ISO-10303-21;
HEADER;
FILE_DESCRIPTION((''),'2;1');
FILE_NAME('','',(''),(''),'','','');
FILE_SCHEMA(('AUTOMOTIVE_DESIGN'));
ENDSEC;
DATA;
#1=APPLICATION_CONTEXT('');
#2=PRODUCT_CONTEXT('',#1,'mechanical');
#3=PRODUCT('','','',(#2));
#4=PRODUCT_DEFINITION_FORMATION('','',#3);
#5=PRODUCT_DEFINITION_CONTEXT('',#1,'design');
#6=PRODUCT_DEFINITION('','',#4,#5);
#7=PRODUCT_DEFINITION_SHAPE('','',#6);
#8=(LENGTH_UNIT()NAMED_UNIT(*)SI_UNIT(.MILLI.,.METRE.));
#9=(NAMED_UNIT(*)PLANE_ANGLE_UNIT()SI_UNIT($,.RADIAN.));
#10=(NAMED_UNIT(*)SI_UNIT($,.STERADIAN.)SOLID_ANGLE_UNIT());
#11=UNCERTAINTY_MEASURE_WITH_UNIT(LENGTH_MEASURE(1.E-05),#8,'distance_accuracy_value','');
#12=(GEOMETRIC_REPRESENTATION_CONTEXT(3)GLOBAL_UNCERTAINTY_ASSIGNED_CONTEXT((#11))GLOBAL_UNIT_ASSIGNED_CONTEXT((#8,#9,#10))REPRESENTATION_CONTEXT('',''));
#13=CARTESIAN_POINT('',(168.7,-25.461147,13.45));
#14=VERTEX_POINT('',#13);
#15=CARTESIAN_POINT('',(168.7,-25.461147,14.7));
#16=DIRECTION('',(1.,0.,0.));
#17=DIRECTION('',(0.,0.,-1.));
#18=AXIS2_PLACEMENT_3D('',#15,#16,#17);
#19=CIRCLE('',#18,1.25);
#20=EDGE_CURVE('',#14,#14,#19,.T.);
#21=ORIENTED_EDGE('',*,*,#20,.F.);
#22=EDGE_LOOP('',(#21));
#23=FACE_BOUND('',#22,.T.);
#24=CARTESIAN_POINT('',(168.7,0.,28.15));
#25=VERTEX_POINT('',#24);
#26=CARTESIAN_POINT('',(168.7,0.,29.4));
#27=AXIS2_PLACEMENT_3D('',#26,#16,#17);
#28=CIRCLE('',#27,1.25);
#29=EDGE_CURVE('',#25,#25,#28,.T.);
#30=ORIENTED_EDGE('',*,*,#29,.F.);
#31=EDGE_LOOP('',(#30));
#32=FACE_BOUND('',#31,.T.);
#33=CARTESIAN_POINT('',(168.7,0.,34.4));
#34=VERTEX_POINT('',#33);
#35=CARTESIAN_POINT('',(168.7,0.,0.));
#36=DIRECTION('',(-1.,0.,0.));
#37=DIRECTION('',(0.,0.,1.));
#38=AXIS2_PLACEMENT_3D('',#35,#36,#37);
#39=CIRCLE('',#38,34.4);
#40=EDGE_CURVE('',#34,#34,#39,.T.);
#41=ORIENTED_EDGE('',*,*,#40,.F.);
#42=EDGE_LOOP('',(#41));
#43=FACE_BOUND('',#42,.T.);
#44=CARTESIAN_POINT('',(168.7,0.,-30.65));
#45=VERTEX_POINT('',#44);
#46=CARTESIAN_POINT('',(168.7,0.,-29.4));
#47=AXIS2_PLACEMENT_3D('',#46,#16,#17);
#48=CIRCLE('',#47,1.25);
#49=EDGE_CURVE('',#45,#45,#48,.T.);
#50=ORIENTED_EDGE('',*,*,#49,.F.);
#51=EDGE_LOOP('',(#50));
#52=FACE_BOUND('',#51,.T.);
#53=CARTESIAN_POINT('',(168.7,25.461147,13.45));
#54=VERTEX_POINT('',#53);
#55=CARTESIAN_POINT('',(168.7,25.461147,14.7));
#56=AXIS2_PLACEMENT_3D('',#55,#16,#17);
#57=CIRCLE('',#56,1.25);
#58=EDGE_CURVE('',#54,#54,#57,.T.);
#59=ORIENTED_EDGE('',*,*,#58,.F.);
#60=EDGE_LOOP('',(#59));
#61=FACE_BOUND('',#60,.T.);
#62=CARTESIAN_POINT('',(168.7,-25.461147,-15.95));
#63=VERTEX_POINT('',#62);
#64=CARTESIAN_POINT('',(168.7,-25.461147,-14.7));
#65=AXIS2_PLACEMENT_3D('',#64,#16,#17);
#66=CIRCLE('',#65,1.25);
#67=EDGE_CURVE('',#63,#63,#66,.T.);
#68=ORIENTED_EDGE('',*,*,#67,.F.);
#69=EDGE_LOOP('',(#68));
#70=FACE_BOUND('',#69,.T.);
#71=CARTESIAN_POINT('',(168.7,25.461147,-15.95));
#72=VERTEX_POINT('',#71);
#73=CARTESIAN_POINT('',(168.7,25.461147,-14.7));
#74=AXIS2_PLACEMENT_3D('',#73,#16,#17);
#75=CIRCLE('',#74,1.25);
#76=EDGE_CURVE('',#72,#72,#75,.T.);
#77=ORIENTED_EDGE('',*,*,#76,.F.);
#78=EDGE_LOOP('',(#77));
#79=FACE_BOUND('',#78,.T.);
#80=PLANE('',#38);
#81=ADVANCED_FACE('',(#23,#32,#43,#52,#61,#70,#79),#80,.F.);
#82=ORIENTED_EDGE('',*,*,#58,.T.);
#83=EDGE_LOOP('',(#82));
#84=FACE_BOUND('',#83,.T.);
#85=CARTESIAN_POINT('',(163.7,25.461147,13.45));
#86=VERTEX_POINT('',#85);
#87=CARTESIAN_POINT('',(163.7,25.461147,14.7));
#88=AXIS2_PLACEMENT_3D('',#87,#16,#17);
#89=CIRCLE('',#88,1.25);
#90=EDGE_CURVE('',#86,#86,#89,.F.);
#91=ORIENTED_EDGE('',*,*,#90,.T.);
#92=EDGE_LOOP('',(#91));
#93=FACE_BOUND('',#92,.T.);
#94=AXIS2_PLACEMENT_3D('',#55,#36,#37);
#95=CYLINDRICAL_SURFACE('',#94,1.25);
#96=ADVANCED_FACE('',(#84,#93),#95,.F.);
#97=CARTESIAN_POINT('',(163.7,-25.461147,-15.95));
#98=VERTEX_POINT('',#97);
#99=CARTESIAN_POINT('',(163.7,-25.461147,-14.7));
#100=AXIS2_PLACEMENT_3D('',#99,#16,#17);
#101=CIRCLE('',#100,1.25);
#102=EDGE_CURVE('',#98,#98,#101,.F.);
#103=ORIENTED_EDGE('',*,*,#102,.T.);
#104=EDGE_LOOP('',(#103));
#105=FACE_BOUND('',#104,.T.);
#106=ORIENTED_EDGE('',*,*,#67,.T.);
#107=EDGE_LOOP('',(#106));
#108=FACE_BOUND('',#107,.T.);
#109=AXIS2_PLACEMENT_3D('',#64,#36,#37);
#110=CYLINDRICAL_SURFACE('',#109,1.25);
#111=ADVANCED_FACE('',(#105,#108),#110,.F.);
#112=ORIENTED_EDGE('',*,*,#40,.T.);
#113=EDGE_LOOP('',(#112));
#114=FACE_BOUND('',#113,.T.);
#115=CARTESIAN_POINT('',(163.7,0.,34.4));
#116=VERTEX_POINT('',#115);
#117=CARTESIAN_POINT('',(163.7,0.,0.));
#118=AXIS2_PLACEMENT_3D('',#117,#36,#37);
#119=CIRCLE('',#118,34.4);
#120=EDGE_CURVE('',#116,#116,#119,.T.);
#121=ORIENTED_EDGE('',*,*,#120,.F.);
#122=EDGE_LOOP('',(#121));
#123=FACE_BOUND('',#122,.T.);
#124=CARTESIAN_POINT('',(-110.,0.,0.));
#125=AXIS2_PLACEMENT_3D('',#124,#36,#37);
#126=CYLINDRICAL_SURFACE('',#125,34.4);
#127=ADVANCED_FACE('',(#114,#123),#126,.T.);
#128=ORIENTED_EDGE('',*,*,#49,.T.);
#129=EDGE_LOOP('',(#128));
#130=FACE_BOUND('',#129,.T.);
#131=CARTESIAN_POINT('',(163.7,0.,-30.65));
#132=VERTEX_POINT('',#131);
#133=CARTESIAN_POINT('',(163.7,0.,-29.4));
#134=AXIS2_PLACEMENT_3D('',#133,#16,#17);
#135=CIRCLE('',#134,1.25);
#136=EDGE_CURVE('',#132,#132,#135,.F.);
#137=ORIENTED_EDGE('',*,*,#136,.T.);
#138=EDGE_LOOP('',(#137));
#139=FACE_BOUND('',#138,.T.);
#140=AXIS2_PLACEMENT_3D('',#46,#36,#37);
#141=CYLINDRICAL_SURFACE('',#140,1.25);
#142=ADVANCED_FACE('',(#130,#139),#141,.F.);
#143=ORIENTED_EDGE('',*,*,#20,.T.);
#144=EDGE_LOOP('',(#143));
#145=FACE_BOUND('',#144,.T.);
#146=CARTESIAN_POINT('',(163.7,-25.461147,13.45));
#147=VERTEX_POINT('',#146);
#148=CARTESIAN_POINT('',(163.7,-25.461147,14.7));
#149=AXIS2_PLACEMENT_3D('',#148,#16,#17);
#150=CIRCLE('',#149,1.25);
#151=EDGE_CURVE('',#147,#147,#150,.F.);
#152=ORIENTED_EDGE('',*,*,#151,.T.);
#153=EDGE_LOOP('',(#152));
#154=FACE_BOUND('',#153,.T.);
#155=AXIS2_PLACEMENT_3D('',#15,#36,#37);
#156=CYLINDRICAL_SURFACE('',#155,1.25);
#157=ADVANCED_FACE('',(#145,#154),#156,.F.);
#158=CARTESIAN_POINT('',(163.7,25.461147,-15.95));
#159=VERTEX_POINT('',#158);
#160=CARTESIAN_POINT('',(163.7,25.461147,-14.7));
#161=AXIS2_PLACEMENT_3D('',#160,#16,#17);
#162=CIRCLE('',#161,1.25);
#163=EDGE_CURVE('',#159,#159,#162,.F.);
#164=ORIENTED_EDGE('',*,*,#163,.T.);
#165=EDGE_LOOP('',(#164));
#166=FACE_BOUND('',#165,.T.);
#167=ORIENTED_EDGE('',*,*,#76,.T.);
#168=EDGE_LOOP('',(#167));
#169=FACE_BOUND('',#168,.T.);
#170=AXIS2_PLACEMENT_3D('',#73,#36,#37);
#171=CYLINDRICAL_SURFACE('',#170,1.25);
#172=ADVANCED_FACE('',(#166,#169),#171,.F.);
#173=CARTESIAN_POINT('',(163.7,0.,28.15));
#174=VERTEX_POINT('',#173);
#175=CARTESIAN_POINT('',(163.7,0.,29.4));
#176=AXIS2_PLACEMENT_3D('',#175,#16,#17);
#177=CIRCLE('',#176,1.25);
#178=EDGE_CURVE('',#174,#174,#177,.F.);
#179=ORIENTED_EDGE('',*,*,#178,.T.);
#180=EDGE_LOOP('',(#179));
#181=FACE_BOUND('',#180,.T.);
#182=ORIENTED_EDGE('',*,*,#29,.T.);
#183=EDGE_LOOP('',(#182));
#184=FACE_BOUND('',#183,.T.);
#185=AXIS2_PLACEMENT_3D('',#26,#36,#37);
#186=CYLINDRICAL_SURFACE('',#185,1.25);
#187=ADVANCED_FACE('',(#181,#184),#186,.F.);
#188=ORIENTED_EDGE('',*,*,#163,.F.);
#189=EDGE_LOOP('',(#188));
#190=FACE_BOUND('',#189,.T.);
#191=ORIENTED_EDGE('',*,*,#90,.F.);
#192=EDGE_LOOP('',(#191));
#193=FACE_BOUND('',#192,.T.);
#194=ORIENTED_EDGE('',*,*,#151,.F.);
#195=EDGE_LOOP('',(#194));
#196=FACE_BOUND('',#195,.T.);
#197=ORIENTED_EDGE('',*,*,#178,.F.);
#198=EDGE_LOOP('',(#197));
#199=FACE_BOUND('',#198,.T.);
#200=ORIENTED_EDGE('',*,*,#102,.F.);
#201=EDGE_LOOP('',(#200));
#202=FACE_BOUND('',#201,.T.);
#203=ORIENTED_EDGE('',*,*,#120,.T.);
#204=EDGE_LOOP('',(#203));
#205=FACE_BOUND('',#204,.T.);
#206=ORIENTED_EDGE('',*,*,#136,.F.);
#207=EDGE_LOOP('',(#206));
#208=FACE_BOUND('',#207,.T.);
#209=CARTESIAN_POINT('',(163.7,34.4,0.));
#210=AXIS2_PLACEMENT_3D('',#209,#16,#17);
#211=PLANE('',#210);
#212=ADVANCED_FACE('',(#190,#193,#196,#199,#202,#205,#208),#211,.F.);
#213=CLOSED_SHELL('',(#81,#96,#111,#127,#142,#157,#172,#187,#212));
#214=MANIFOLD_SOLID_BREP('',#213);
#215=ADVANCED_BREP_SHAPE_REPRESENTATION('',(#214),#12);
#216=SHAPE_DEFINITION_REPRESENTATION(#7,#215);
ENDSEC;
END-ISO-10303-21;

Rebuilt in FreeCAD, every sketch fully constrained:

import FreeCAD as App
import Part
import Sketcher
from FreeCAD import Vector
Q = App.Units.Quantity


def add_polygon(sketch, points):
    """Adds a closed chain of lines whose ends are joined by coincident constraints."""
    first, n = sketch.GeometryCount, len(points)
    for a, b in zip(points, points[1:] + points[:1]):
        sketch.addGeometry(Part.LineSegment(App.Vector(*a, 0), App.Vector(*b, 0)), False)
    for i in range(n):
        sketch.addConstraint(Sketcher.Constraint("Coincident", first + i, 2, first + (i + 1) % n, 1))

doc = App.newDocument("Part")
params = doc.addObject("Spreadsheet::Sheet", "Params")
for row, (alias, value) in enumerate([
    ("sketch1_width", "5 mm"),
    ("sketch1_height", "34.4 mm"),
    ("revolution_angle", "360 deg"),
    ("sketch2_diameter", "2.5 mm"),
], start=1):
    params.set(f"A{row}", alias)
    params.set(f"B{row}", "=" + value)
    params.setAlias(f"B{row}", alias)

body = doc.addObject("PartDesign::Body", "Body")

sketch1 = body.newObject("Sketcher::SketchObject", "Sketch")
sketch1.AttachmentSupport = (doc.getObject("XY_Plane"), [""])
sketch1.MapMode = "FlatFace"
add_polygon(sketch1, [(164, 34), (164, 0), (169, 0), (169, 34)])
sketch1.addConstraint([
    Sketcher.Constraint("Vertical", 0),
    Sketcher.Constraint("Horizontal", 1),
    Sketcher.Constraint("Vertical", 2),
    Sketcher.Constraint("Horizontal", 3),
    Sketcher.Constraint("PointOnObject", 0, 2, -1),
    Sketcher.Constraint("DistanceX", 1, 1, 1, 2, Q("5 mm")),
    Sketcher.Constraint("DistanceY", 0, 2, 0, 1, Q("34.4 mm")),
    Sketcher.Constraint("DistanceX", -1, 1, 0, 2, Q("163.7 mm")),
])
sketch1.setExpression("Constraints[9]", "Params.sketch1_width")
sketch1.setExpression("Constraints[10]", "Params.sketch1_height")
revolution = body.newObject("PartDesign::Revolution", "Revolution")
revolution.Profile = sketch1
revolution.ReferenceAxis = (sketch1, ["H_Axis"])
revolution.setExpression("Angle", "Params.revolution_angle")

sketch2 = body.newObject("Sketcher::SketchObject", "Sketch001")
sketch2.AttachmentSupport = (doc.getObject("YZ_Plane"), [""])
sketch2.MapMode = "FlatFace"
sketch2.addGeometry([
    Part.Circle(Vector(0, 29.4, 0), Vector(0, 0, 1), 1.2),
    Part.Circle(Vector(-25.5, -14.7, 0), Vector(0, 0, 1), 1.2),
    Part.Circle(Vector(25.5, -14.7, 0), Vector(0, 0, 1), 1.2),
    Part.Circle(Vector(0, -29.4, 0), Vector(0, 0, 1), 1.2),
    Part.Circle(Vector(25.5, 14.7, 0), Vector(0, 0, 1), 1.2),
    Part.Circle(Vector(-25.5, 14.7, 0), Vector(0, 0, 1), 1.2),
], False)
sketch2.addConstraint([
    Sketcher.Constraint("Equal", 0, 1),
    Sketcher.Constraint("Equal", 1, 2),
    Sketcher.Constraint("Equal", 2, 3),
    Sketcher.Constraint("Equal", 3, 4),
    Sketcher.Constraint("Equal", 4, 5),
    Sketcher.Constraint("Symmetric", 0, 3, 3, 3, -1, 1),
    Sketcher.Constraint("Symmetric", 1, 3, 4, 3, -1, 1),
    Sketcher.Constraint("Symmetric", 2, 3, 5, 3, -1, 1),
    Sketcher.Constraint("Symmetric", 1, 3, 2, 3, -2),
    Sketcher.Constraint("PointOnObject", 0, 3, -2),
    Sketcher.Constraint("Diameter", 0, Q("2.5 mm")),
    Sketcher.Constraint("DistanceY", -1, 1, 0, 3, Q("29.4 mm")),
    Sketcher.Constraint("DistanceY", 1, 3, -1, 1, Q("14.7 mm")),
    Sketcher.Constraint("DistanceX", 1, 3, -1, 1, Q("25.461147 mm")),
])
sketch2.setExpression("Constraints[10]", "Params.sketch2_diameter")
pocket1 = body.newObject("PartDesign::Pocket", "Pocket")
pocket1.Profile = sketch2
pocket1.Type = "ThroughAll"
pocket1.Midplane = True

doc.recompute()
